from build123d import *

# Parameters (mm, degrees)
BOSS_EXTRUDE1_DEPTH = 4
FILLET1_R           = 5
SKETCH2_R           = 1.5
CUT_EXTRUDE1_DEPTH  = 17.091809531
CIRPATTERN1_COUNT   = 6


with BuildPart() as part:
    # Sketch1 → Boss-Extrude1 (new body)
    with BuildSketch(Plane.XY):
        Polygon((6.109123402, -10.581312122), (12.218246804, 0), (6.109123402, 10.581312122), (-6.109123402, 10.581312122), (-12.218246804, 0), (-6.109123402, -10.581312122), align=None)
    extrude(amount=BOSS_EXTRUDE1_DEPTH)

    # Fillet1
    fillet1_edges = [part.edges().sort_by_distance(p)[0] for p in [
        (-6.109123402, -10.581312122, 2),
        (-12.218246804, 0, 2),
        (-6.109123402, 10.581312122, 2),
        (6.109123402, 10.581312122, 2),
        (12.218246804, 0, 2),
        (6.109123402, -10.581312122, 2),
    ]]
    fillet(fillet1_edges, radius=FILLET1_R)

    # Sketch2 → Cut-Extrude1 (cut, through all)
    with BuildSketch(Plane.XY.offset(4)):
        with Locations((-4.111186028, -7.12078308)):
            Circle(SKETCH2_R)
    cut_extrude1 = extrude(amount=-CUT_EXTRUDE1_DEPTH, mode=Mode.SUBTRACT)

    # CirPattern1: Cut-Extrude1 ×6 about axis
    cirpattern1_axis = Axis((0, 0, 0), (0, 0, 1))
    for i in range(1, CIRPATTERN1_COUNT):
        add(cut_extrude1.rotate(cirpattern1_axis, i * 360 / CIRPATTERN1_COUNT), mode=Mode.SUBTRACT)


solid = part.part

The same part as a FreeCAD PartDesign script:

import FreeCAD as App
import Part
import Sketcher
from FreeCAD import Vector
Q = App.Units.Quantity


def edges_at(feature, points):
    """Names of the edges that pass closest to the given points."""
    edges = feature.Shape.Edges
    near = lambda p: min(range(len(edges)), key=lambda i: edges[i].distToShape(Part.Vertex(*p))[0])
    return sorted({f"Edge{near(p) + 1}" for p in points})


def add_polygon(sketch, points):
    """Adds a closed chain of lines whose ends are joined by coincident constraints."""
    first, n = sketch.GeometryCount, len(points)
    for a, b in zip(points, points[1:] + points[:1]):
        sketch.addGeometry(Part.LineSegment(App.Vector(*a, 0), App.Vector(*b, 0)), False)
    for i in range(n):
        sketch.addConstraint(Sketcher.Constraint("Coincident", first + i, 2, first + (i + 1) % n, 1))

doc = App.newDocument("Part")
body = doc.addObject("PartDesign::Body", "Body")

sketch1 = body.newObject("Sketcher::SketchObject", "Sketch")
sketch1.AttachmentSupport = (doc.getObject("XY_Plane"), [""])
sketch1.MapMode = "FlatFace"
add_polygon(sketch1, [(6, -11), (12, 0), (6, 11), (-6, 11), (-12, 0), (-6, -11)])
sketch1.addConstraint([
    Sketcher.Constraint("Horizontal", 2),
    Sketcher.Constraint("Horizontal", 5),
    Sketcher.Constraint("Symmetric", 0, 2, 3, 2, -1, 1),
    Sketcher.Constraint("Symmetric", 1, 2, 4, 2, -1, 1),
    Sketcher.Constraint("PointOnObject", 0, 2, -1),
    Sketcher.Constraint("Parallel", 0, 3),
    Sketcher.Constraint("Vertical", 2, 2, 4, 2),
    Sketcher.Constraint("Angle", 0, Q("60 deg")),
    Sketcher.Constraint("DistanceX", 2, 2, 2, 1, 12.218247),
    Sketcher.Constraint("DistanceX", 2, 2, 0, 2, 18.32737),
])
pad1 = body.newObject("PartDesign::Pad", "Pad")
pad1.Profile = sketch1
pad1.Length = 4
doc.recompute()

fillet = body.newObject("PartDesign::Fillet", "Fillet")
fillet.Base = (pad1, edges_at(pad1, [
    (-6.109, -10.581, 2),
    (-12.218, 0, 2),
    (-6.109, 10.581, 2),
    (6.109, 10.581, 2),
    (12.218, 0, 2),
    (6.109, -10.581, 2),
]))
fillet.Radius = 5

sketch2 = body.newObject("Sketcher::SketchObject", "Sketch001")
sketch2.AttachmentSupport = (doc.getObject("XY_Plane"), [""])
sketch2.MapMode = "FlatFace"
sketch2.AttachmentOffset = App.Placement(Vector(0, 0, 4), App.Rotation())
sketch2.addGeometry(Part.Circle(Vector(-4.1, -7.1, 0), Vector(0, 0, 1), 1.5), False)
sketch2.addConstraint([
    Sketcher.Constraint("Diameter", 0, 3.0),
    Sketcher.Constraint("DistanceX", 0, 3, -1, 1, 4.111186),
    Sketcher.Constraint("DistanceY", 0, 3, -1, 1, 7.120783),
])
pocket1 = body.newObject("PartDesign::Pocket", "Pocket")
pocket1.Profile = sketch2
pocket1.Type = "ThroughAll"
doc.recompute()

polarpattern = body.newObject("PartDesign::PolarPattern", "PolarPattern")
polarpattern.Originals = [pocket1]
polarpattern.Axis = (doc.getObject("Z_Axis"), [""])
polarpattern.Angle = 360
polarpattern.Occurrences = 6
body.Tip = polarpattern

doc.recompute()
